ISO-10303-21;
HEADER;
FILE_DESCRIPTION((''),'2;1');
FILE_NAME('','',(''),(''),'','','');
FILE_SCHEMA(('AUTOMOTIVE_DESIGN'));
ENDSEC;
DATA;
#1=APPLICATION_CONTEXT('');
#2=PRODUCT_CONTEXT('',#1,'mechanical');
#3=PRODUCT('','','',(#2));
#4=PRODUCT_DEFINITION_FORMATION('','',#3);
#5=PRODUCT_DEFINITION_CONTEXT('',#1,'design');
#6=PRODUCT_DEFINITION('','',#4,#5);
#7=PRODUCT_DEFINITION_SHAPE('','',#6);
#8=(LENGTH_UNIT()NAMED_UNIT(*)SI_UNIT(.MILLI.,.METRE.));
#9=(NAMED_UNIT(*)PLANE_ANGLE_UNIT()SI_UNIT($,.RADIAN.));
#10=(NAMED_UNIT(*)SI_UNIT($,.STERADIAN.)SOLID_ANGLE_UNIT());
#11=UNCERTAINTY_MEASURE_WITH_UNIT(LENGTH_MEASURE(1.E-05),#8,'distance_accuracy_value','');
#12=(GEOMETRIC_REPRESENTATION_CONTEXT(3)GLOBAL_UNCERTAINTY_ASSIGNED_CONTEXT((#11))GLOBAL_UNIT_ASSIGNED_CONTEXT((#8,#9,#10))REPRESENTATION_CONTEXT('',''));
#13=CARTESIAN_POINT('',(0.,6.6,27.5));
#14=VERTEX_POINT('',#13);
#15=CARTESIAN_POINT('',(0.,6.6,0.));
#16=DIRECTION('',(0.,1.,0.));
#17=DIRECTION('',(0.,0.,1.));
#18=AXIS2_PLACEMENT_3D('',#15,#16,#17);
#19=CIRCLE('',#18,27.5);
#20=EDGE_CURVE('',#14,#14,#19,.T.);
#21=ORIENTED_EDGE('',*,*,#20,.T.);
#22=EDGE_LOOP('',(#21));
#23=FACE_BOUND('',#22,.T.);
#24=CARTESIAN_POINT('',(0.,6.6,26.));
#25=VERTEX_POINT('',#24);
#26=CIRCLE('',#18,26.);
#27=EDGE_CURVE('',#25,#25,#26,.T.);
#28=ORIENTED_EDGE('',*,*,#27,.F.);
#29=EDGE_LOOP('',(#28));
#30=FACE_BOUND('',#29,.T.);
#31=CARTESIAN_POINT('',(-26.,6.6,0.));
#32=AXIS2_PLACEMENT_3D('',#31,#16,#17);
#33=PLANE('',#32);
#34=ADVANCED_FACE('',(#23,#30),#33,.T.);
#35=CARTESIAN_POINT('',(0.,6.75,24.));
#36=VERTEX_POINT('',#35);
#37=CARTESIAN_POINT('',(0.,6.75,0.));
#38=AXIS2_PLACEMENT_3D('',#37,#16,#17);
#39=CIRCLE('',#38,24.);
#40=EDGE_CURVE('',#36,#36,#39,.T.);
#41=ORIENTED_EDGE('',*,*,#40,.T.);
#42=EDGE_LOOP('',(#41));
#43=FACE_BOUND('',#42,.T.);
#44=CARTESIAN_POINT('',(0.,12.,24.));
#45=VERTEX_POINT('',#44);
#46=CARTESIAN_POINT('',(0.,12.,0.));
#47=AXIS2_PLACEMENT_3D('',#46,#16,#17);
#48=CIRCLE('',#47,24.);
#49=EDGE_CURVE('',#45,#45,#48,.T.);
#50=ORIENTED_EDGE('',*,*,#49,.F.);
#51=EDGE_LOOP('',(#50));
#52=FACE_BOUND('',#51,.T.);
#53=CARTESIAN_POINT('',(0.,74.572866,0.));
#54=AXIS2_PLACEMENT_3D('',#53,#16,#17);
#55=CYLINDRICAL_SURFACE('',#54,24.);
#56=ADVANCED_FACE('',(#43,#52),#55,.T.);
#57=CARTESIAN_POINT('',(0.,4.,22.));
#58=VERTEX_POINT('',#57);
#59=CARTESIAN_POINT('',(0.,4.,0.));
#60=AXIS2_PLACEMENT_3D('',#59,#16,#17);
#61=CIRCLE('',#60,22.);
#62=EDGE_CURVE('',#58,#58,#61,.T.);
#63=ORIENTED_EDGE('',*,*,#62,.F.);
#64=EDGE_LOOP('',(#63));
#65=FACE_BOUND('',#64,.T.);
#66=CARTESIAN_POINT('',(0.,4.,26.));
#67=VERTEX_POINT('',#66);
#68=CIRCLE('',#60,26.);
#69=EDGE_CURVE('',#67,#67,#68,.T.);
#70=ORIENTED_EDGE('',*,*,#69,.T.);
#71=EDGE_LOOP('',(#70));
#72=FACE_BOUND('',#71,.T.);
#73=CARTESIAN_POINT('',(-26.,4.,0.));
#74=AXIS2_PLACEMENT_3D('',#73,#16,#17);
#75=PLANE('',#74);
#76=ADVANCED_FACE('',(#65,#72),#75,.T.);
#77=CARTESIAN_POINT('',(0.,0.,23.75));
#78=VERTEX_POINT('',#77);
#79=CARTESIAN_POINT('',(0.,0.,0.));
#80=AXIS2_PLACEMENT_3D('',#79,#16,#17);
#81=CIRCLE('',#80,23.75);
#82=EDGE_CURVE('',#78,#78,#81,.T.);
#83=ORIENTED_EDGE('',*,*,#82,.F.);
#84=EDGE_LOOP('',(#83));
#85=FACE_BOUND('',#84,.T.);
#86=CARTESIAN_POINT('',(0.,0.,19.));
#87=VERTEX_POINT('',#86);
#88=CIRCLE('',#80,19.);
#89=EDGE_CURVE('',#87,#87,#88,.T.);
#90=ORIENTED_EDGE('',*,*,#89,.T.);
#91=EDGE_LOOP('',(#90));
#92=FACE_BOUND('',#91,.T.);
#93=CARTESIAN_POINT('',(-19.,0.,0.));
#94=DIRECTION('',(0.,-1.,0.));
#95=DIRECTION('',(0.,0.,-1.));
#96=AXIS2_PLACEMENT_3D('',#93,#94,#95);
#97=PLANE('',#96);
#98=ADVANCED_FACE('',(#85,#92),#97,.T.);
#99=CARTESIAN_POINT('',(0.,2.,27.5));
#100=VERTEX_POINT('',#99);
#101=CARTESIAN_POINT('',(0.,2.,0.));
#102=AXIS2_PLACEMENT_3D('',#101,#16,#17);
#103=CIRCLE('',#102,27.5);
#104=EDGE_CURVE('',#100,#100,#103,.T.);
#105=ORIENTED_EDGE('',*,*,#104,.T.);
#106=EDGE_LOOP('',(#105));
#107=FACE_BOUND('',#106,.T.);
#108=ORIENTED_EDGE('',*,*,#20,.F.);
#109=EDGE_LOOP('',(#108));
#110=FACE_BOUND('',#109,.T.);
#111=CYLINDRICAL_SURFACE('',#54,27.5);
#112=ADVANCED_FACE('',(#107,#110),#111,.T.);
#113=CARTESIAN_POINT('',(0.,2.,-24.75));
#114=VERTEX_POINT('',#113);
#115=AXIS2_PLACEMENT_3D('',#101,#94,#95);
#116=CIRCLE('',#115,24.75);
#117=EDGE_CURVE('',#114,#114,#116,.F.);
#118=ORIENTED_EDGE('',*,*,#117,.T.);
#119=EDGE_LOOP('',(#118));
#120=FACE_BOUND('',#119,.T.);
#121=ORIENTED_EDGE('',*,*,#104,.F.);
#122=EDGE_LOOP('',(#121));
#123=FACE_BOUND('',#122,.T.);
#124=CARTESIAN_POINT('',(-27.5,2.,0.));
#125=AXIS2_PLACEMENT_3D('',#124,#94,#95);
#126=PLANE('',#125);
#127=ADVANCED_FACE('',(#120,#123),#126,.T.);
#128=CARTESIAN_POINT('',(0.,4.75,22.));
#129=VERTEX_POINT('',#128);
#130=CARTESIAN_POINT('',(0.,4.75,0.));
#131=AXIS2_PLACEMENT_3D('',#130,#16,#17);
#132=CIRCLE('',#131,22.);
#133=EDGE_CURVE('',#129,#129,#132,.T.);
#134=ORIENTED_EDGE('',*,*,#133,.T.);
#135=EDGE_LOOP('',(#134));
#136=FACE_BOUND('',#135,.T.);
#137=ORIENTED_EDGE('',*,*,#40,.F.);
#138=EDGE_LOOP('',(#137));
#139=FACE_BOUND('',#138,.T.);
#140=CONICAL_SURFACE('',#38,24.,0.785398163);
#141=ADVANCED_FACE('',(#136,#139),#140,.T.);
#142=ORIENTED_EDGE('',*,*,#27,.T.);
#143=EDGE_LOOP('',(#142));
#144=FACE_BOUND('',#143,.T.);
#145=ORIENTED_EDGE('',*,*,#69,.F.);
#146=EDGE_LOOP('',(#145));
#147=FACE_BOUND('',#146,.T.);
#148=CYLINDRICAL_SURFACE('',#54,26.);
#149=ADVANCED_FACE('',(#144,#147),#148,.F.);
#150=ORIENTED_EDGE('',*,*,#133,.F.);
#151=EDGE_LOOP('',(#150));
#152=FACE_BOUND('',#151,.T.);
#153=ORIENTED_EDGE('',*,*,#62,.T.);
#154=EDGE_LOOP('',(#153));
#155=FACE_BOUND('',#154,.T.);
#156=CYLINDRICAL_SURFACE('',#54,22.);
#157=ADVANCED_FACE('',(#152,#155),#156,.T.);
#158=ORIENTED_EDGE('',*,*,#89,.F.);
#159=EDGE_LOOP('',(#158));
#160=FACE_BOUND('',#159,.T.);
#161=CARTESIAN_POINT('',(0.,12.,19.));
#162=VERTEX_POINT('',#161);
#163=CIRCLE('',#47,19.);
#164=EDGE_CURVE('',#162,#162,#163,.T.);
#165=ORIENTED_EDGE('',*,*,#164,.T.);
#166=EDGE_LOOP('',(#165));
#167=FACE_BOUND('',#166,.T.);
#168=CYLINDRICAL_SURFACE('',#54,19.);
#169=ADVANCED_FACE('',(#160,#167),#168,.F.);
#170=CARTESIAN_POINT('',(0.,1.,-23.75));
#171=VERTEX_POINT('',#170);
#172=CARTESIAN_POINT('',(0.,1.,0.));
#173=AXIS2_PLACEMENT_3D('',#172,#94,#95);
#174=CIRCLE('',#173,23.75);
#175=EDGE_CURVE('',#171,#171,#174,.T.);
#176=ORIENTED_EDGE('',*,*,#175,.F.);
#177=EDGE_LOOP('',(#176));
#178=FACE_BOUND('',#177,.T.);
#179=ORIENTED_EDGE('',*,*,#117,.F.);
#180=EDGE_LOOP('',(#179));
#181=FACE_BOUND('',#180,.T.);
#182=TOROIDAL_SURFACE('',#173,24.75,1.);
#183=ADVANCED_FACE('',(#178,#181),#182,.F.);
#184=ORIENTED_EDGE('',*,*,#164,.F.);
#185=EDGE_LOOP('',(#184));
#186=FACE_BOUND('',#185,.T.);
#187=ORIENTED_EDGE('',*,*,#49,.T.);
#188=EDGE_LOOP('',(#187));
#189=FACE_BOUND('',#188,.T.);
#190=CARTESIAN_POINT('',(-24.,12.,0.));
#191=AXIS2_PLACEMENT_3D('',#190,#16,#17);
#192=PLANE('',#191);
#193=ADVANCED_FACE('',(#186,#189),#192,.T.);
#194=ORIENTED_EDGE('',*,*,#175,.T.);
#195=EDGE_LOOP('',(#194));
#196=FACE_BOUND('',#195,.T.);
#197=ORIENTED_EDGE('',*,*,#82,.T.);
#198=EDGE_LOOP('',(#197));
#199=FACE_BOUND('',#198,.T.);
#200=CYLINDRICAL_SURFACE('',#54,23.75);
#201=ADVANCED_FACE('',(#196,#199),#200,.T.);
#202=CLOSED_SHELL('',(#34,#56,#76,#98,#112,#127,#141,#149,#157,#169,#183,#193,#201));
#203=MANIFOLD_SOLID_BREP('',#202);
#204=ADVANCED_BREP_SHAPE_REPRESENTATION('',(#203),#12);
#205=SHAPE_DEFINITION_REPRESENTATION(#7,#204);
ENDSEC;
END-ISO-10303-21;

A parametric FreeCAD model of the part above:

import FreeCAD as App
import Part
import Sketcher
Q = App.Units.Quantity


def edges_at(feature, points):
    """Names of the edges that pass closest to the given points."""
    edges = feature.Shape.Edges
    near = lambda p: min(range(len(edges)), key=lambda i: edges[i].distToShape(Part.Vertex(*p))[0])
    return sorted({f"Edge{near(p) + 1}" for p in points})


def add_polygon(sketch, points):
    """Adds a closed chain of lines whose ends are joined by coincident constraints."""
    first, n = sketch.GeometryCount, len(points)
    for a, b in zip(points, points[1:] + points[:1]):
        sketch.addGeometry(Part.LineSegment(App.Vector(*a, 0), App.Vector(*b, 0)), False)
    for i in range(n):
        sketch.addConstraint(Sketcher.Constraint("Coincident", first + i, 2, first + (i + 1) % n, 1))

doc = App.newDocument("Part")
body = doc.addObject("PartDesign::Body", "Body")

# Sketch on XY plane
sketch1 = body.newObject("Sketcher::SketchObject", "Sketch")
sketch1.AttachmentSupport = (doc.getObject("XY_Plane"), [""])
sketch1.MapMode = "FlatFace"
add_polygon(sketch1, [(-22, 4.75), (-22, 4), (-26, 4), (-26, 6.6), (-27.5, 6.6), (-27.5, 2), (-23.75, 2), (-23.75, 0), (-19, 0), (-19, 12), (-24, 12), (-24, 6.75)])  # lines 0-11
sketch1.addConstraint([
    Sketcher.Constraint("Vertical", 0),
    Sketcher.Constraint("Horizontal", 1),
    Sketcher.Constraint("Vertical", 2),
    Sketcher.Constraint("Horizontal", 3),
    Sketcher.Constraint("Vertical", 4),
    Sketcher.Constraint("Horizontal", 5),
    Sketcher.Constraint("Vertical", 6),
    Sketcher.Constraint("Horizontal", 7),
    Sketcher.Constraint("Vertical", 8),
    Sketcher.Constraint("Horizontal", 9),
    Sketcher.Constraint("Vertical", 10),
    Sketcher.Constraint("PointOnObject", 6, 2, -1),
    Sketcher.Constraint("DistanceX", 1, 2, 1, 1, Q("4 mm")),
    Sketcher.Constraint("DistanceX", 9, 2, 9, 1, Q("5 mm")),
    Sketcher.Constraint("DistanceY", 6, 2, 6, 1, Q("2 mm")),
    Sketcher.Constraint("DistanceY", 8, 1, 8, 2, Q("12 mm")),
    Sketcher.Constraint("Angle", 11, Q("-45 deg")),
    Sketcher.Constraint("DistanceX", 3, 2, 3, 1, Q("1.5 mm")),
    Sketcher.Constraint("DistanceY", 2, 1, 2, 2, Q("2.6 mm")),
    Sketcher.Constraint("DistanceY", 4, 2, 4, 1, Q("4.6 mm")),
    Sketcher.Constraint("DistanceX", 0, 2, -1, 1, Q("22 mm")),
    Sketcher.Constraint("DistanceX", 7, 2, -1, 1, Q("19 mm")),
    Sketcher.Constraint("DistanceX", 5, 1, 5, 2, Q("3.75 mm")),
    Sketcher.Constraint("DistanceY", 0, 2, 0, 1, Q("0.75 mm")),
])
revolution = body.newObject("PartDesign::Revolution", "Revolution")
revolution.Profile = sketch1
revolution.ReferenceAxis = (sketch1, ["V_Axis"])
revolution.Angle = 360
doc.recompute()

fillet = body.newObject("PartDesign::Fillet", "Fillet")
fillet.Base = (revolution, edges_at(revolution, [(0, 2, -23.75)]))
fillet.Radius = 1

doc.recompute()
